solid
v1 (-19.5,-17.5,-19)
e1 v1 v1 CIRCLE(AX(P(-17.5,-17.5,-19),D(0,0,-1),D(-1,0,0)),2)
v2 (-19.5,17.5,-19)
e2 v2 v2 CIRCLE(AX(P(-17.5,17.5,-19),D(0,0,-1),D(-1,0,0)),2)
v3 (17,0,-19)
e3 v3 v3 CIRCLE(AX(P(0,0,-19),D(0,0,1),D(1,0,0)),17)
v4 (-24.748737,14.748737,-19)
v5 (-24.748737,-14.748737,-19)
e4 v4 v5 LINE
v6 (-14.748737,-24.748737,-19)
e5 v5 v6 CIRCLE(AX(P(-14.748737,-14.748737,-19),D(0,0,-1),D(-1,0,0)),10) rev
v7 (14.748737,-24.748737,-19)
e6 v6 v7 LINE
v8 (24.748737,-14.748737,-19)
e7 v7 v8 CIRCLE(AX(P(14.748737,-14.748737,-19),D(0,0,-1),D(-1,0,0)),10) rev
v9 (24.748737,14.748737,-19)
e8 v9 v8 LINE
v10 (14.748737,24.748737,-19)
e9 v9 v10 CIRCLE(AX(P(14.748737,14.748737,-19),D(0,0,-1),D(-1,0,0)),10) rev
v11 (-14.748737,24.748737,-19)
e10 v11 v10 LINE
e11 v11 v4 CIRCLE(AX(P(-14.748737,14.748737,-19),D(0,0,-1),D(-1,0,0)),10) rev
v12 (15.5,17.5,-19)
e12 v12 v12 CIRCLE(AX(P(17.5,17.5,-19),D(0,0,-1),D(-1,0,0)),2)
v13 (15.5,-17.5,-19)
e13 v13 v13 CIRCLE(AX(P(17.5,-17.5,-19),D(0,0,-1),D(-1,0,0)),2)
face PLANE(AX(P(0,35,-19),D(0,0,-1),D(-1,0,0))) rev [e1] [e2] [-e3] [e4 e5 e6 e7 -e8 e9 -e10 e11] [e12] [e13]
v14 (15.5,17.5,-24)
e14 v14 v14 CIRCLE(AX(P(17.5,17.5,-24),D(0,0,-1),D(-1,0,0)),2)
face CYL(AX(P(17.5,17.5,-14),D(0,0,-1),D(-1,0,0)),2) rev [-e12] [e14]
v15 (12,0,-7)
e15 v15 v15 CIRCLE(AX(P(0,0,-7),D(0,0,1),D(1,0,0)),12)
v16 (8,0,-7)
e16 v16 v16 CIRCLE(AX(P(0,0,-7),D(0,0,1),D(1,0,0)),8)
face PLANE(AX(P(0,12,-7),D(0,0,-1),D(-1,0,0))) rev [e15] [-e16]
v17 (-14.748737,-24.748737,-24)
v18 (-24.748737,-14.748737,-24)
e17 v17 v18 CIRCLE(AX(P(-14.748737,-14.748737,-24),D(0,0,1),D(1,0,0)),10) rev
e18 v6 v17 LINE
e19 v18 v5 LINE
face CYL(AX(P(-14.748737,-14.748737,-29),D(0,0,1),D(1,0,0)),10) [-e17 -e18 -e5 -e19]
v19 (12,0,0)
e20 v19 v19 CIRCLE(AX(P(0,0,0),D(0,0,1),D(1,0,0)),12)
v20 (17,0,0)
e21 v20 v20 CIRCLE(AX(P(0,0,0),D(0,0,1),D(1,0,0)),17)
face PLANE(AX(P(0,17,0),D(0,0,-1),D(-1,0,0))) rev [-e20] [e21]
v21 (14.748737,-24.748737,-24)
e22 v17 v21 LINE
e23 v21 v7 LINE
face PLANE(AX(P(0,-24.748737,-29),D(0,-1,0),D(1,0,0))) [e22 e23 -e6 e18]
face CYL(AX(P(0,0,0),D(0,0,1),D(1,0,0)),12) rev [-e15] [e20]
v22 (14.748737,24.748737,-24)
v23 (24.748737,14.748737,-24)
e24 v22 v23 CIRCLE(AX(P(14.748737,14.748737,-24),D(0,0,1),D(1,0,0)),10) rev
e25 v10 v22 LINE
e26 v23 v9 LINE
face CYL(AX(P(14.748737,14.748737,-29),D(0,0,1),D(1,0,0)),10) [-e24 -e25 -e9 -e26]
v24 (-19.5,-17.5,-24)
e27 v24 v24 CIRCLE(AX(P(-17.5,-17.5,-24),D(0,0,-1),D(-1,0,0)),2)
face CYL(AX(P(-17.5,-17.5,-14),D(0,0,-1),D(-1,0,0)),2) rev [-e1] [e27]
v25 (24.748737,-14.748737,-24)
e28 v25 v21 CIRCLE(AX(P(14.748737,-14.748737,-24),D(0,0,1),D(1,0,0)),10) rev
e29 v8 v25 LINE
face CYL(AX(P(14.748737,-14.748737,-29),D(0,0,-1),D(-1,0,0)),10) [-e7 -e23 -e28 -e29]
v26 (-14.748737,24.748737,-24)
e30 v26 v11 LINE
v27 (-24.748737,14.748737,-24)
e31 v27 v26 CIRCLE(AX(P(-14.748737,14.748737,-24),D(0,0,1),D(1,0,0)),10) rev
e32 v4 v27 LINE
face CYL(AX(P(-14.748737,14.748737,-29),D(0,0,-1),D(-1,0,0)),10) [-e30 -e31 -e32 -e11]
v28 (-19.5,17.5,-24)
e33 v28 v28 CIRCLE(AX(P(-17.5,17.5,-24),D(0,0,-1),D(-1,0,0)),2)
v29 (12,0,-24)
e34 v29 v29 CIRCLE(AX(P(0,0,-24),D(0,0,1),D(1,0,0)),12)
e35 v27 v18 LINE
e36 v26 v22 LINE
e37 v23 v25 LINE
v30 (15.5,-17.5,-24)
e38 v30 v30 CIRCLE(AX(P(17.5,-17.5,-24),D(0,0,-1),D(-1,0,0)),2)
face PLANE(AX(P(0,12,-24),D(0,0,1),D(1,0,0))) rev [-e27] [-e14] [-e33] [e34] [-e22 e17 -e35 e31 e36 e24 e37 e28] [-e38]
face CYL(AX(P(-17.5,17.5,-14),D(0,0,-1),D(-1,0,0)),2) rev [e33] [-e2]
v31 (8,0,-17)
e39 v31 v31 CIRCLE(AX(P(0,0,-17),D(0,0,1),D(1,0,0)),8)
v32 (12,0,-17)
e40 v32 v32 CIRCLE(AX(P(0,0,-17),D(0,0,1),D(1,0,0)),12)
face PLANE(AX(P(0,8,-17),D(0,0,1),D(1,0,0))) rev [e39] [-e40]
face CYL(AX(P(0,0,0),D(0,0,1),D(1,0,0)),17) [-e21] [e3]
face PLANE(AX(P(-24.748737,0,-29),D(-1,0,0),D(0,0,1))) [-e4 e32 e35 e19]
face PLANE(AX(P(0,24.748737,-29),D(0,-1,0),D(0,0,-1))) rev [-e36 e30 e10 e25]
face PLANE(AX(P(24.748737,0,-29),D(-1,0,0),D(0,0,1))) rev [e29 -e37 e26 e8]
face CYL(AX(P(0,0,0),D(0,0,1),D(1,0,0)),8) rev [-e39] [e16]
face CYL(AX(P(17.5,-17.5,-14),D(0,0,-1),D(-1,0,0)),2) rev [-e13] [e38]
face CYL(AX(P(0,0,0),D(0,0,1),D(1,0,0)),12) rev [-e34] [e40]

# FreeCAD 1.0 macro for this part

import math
import FreeCAD as App
import Part
import Sketcher
Q = App.Units.Quantity


def edges_at(feature, points):
    """Names of the edges that pass closest to the given points."""
    edges = feature.Shape.Edges
    near = lambda p: min(range(len(edges)), key=lambda i: edges[i].distToShape(Part.Vertex(*p))[0])
    return sorted({f"Edge{near(p) + 1}" for p in points})


def add_polygon(sketch, points):
    """Adds a closed chain of lines whose ends are joined by coincident constraints."""
    first, n = sketch.GeometryCount, len(points)
    for a, b in zip(points, points[1:] + points[:1]):
        sketch.addGeometry(Part.LineSegment(App.Vector(*a, 0), App.Vector(*b, 0)), False)
    for i in range(n):
        sketch.addConstraint(Sketcher.Constraint("Coincident", first + i, 2, first + (i + 1) % n, 1))

doc = App.newDocument("Part")
body = doc.addObject("PartDesign::Body", "Body")

sketch1 = body.newObject("Sketcher::SketchObject", "Sketch")
sketch1.AttachmentSupport = (doc.getObject("YZ_Plane"), [""])
sketch1.MapMode = "FlatFace"
add_polygon(sketch1, [(12, 0), (12, -7), (8, -7), (8, -17), (12, -17), (12, -24), (35, -24), (35, -19), (17, -19), (17, 0)])
sketch1.addConstraint([
    Sketcher.Constraint("Vertical", 0),
    Sketcher.Constraint("Horizontal", 1),
    Sketcher.Constraint("Vertical", 2),
    Sketcher.Constraint("Horizontal", 3),
    Sketcher.Constraint("Vertical", 4),
    Sketcher.Constraint("Horizontal", 5),
    Sketcher.Constraint("Vertical", 6),
    Sketcher.Constraint("Horizontal", 7),
    Sketcher.Constraint("Vertical", 8),
    Sketcher.Constraint("Horizontal", 9),
    Sketcher.Constraint("PointOnObject", 8, 2, -1),
    Sketcher.Constraint("Vertical", 0, 2, 3, 2),
    Sketcher.Constraint("Equal", 0, 4),
    Sketcher.Constraint("Equal", 9, 6),
    Sketcher.Constraint("DistanceX", 1, 2, 1, 1, Q("4 mm")),
    Sketcher.Constraint("DistanceX", 5, 1, 5, 2, Q("23 mm")),
    Sketcher.Constraint("DistanceX", 7, 2, 7, 1, Q("18 mm")),
    Sketcher.Constraint("DistanceY", 0, 2, 0, 1, Q("7 mm")),
    Sketcher.Constraint("DistanceY", 2, 2, 2, 1, Q("10 mm")),
    Sketcher.Constraint("DistanceX", -1, 1, 0, 2, Q("12 mm")),
])
revolution = body.newObject("PartDesign::Revolution", "Revolution")
revolution.Profile = sketch1
revolution.ReferenceAxis = (sketch1, ["V_Axis"])
revolution.Angle = 360

sketch2 = body.newObject("Sketcher::SketchObject", "Sketch001")
sketch2.AttachmentSupport = (doc.getObject("XY_Plane"), [""])
sketch2.MapMode = "FlatFace"
sketch2.AttachmentOffset = App.Placement(App.Vector(0, 0, -19), App.Rotation())
sketch2.addGeometry([
    Part.ArcOfCircle(Part.Circle(App.Vector(0, 0, 0), App.Vector(0, 0, 1), 35), math.radians(0), math.radians(45)),
    Part.LineSegment(App.Vector(25, 25, 0), App.Vector(25, -25, 0)),
    Part.ArcOfCircle(Part.Circle(App.Vector(0, 0, 0), App.Vector(0, 0, 1), 35), math.radians(-45), math.radians(0)),
    Part.ArcOfCircle(Part.Circle(App.Vector(0, 0, 0), App.Vector(0, 0, 1), 35), math.radians(45), math.radians(135)),
    Part.LineSegment(App.Vector(-25, 25, 0), App.Vector(25, 25, 0)),
    Part.LineSegment(App.Vector(-25, -25, 0), App.Vector(-25, 25, 0)),
    Part.ArcOfCircle(Part.Circle(App.Vector(0, 0, 0), App.Vector(0, 0, 1), 35), math.radians(135), math.radians(225)),
    Part.LineSegment(App.Vector(25, -25, 0), App.Vector(-25, -25, 0)),
    Part.ArcOfCircle(Part.Circle(App.Vector(0, 0, 0), App.Vector(0, 0, 1), 35), math.radians(-135), math.radians(-45)),
], False)
sketch2.addConstraint([
    Sketcher.Constraint("Coincident", 0, 2, 1, 1),
    Sketcher.Constraint("Coincident", 1, 2, 2, 1),
    Sketcher.Constraint("Tangent", 2, 2, 0, 1),
    Sketcher.Constraint("Coincident", 3, 1, 4, 2),
    Sketcher.Constraint("Coincident", 4, 1, 3, 2),
    Sketcher.Constraint("Coincident", 5, 1, 6, 2),
    Sketcher.Constraint("Coincident", 6, 1, 5, 2),
    Sketcher.Constraint("Coincident", 7, 1, 8, 2),
    Sketcher.Constraint("Coincident", 8, 1, 7, 2),
    Sketcher.Constraint("Vertical", 1),
    Sketcher.Constraint("Horizontal", 4),
    Sketcher.Constraint("Vertical", 5),
    Sketcher.Constraint("Horizontal", 7),
    Sketcher.Constraint("Coincident", 0, 3, -1, 1),
    Sketcher.Constraint("Coincident", 3, 3, -1, 1),
    Sketcher.Constraint("Coincident", 6, 3, -1, 1),
    Sketcher.Constraint("Coincident", 8, 3, -1, 1),
    Sketcher.Constraint("Coincident", 3, 1, 0, 2),
    Sketcher.Constraint("Coincident", 6, 1, 4, 1),
    Sketcher.Constraint("Coincident", 7, 1, 1, 2),
    Sketcher.Constraint("Equal", 0, 2),
    Sketcher.Constraint("PointOnObject", 2, 2, -1),
    Sketcher.Constraint("Equal", 7, 1),
    Sketcher.Constraint("Radius", 0, Q("35 mm")),
])
pocket1 = body.newObject("PartDesign::Pocket", "Pocket")
pocket1.Profile = sketch2
pocket1.Length = 10
doc.recompute()

fillet = body.newObject("PartDesign::Fillet", "Fillet")
fillet.Base = (pocket1, edges_at(pocket1, [
    (24.749, 24.749, -21.5),
    (24.749, -24.749, -21.5),
    (-24.749, 24.749, -21.5),
    (-24.749, -24.749, -21.5),
]))
fillet.Radius = 10

sketch3 = body.newObject("Sketcher::SketchObject", "Sketch002")
sketch3.AttachmentSupport = (doc.getObject("XY_Plane"), [""])
sketch3.MapMode = "FlatFace"
sketch3.AttachmentOffset = App.Placement(App.Vector(0, 0, -24), App.Rotation())
sketch3.addGeometry([
    Part.Circle(App.Vector(17.5, 17.5, 0), App.Vector(0, 0, 1), 2),
    Part.Circle(App.Vector(-17.5, 17.5, 0), App.Vector(0, 0, 1), 2),
    Part.Circle(App.Vector(-17.5, -17.5, 0), App.Vector(0, 0, 1), 2),
    Part.Circle(App.Vector(17.5, -17.5, 0), App.Vector(0, 0, 1), 2),
], False)
sketch3.addConstraint([
    Sketcher.Constraint("Equal", 0, 1),
    Sketcher.Constraint("Equal", 1, 2),
    Sketcher.Constraint("Equal", 2, 3),
    Sketcher.Constraint("Symmetric", 0, 3, 2, 3, -1, 1),
    Sketcher.Constraint("Symmetric", 1, 3, 3, 3, -1, 1),
    Sketcher.Constraint("Symmetric", 0, 3, 1, 3, -2),
    Sketcher.Constraint("Diameter", 0, Q("4 mm")),
    Sketcher.Constraint("DistanceX", 1, 3, 0, 3, Q("35 mm")),
    Sketcher.Constraint("DistanceY", 2, 3, 1, 3, Q("35 mm")),
])
pocket2 = body.newObject("PartDesign::Pocket", "Pocket001")
pocket2.Profile = sketch3
pocket2.Length = 10
pocket2.Reversed = True

doc.recompute()
